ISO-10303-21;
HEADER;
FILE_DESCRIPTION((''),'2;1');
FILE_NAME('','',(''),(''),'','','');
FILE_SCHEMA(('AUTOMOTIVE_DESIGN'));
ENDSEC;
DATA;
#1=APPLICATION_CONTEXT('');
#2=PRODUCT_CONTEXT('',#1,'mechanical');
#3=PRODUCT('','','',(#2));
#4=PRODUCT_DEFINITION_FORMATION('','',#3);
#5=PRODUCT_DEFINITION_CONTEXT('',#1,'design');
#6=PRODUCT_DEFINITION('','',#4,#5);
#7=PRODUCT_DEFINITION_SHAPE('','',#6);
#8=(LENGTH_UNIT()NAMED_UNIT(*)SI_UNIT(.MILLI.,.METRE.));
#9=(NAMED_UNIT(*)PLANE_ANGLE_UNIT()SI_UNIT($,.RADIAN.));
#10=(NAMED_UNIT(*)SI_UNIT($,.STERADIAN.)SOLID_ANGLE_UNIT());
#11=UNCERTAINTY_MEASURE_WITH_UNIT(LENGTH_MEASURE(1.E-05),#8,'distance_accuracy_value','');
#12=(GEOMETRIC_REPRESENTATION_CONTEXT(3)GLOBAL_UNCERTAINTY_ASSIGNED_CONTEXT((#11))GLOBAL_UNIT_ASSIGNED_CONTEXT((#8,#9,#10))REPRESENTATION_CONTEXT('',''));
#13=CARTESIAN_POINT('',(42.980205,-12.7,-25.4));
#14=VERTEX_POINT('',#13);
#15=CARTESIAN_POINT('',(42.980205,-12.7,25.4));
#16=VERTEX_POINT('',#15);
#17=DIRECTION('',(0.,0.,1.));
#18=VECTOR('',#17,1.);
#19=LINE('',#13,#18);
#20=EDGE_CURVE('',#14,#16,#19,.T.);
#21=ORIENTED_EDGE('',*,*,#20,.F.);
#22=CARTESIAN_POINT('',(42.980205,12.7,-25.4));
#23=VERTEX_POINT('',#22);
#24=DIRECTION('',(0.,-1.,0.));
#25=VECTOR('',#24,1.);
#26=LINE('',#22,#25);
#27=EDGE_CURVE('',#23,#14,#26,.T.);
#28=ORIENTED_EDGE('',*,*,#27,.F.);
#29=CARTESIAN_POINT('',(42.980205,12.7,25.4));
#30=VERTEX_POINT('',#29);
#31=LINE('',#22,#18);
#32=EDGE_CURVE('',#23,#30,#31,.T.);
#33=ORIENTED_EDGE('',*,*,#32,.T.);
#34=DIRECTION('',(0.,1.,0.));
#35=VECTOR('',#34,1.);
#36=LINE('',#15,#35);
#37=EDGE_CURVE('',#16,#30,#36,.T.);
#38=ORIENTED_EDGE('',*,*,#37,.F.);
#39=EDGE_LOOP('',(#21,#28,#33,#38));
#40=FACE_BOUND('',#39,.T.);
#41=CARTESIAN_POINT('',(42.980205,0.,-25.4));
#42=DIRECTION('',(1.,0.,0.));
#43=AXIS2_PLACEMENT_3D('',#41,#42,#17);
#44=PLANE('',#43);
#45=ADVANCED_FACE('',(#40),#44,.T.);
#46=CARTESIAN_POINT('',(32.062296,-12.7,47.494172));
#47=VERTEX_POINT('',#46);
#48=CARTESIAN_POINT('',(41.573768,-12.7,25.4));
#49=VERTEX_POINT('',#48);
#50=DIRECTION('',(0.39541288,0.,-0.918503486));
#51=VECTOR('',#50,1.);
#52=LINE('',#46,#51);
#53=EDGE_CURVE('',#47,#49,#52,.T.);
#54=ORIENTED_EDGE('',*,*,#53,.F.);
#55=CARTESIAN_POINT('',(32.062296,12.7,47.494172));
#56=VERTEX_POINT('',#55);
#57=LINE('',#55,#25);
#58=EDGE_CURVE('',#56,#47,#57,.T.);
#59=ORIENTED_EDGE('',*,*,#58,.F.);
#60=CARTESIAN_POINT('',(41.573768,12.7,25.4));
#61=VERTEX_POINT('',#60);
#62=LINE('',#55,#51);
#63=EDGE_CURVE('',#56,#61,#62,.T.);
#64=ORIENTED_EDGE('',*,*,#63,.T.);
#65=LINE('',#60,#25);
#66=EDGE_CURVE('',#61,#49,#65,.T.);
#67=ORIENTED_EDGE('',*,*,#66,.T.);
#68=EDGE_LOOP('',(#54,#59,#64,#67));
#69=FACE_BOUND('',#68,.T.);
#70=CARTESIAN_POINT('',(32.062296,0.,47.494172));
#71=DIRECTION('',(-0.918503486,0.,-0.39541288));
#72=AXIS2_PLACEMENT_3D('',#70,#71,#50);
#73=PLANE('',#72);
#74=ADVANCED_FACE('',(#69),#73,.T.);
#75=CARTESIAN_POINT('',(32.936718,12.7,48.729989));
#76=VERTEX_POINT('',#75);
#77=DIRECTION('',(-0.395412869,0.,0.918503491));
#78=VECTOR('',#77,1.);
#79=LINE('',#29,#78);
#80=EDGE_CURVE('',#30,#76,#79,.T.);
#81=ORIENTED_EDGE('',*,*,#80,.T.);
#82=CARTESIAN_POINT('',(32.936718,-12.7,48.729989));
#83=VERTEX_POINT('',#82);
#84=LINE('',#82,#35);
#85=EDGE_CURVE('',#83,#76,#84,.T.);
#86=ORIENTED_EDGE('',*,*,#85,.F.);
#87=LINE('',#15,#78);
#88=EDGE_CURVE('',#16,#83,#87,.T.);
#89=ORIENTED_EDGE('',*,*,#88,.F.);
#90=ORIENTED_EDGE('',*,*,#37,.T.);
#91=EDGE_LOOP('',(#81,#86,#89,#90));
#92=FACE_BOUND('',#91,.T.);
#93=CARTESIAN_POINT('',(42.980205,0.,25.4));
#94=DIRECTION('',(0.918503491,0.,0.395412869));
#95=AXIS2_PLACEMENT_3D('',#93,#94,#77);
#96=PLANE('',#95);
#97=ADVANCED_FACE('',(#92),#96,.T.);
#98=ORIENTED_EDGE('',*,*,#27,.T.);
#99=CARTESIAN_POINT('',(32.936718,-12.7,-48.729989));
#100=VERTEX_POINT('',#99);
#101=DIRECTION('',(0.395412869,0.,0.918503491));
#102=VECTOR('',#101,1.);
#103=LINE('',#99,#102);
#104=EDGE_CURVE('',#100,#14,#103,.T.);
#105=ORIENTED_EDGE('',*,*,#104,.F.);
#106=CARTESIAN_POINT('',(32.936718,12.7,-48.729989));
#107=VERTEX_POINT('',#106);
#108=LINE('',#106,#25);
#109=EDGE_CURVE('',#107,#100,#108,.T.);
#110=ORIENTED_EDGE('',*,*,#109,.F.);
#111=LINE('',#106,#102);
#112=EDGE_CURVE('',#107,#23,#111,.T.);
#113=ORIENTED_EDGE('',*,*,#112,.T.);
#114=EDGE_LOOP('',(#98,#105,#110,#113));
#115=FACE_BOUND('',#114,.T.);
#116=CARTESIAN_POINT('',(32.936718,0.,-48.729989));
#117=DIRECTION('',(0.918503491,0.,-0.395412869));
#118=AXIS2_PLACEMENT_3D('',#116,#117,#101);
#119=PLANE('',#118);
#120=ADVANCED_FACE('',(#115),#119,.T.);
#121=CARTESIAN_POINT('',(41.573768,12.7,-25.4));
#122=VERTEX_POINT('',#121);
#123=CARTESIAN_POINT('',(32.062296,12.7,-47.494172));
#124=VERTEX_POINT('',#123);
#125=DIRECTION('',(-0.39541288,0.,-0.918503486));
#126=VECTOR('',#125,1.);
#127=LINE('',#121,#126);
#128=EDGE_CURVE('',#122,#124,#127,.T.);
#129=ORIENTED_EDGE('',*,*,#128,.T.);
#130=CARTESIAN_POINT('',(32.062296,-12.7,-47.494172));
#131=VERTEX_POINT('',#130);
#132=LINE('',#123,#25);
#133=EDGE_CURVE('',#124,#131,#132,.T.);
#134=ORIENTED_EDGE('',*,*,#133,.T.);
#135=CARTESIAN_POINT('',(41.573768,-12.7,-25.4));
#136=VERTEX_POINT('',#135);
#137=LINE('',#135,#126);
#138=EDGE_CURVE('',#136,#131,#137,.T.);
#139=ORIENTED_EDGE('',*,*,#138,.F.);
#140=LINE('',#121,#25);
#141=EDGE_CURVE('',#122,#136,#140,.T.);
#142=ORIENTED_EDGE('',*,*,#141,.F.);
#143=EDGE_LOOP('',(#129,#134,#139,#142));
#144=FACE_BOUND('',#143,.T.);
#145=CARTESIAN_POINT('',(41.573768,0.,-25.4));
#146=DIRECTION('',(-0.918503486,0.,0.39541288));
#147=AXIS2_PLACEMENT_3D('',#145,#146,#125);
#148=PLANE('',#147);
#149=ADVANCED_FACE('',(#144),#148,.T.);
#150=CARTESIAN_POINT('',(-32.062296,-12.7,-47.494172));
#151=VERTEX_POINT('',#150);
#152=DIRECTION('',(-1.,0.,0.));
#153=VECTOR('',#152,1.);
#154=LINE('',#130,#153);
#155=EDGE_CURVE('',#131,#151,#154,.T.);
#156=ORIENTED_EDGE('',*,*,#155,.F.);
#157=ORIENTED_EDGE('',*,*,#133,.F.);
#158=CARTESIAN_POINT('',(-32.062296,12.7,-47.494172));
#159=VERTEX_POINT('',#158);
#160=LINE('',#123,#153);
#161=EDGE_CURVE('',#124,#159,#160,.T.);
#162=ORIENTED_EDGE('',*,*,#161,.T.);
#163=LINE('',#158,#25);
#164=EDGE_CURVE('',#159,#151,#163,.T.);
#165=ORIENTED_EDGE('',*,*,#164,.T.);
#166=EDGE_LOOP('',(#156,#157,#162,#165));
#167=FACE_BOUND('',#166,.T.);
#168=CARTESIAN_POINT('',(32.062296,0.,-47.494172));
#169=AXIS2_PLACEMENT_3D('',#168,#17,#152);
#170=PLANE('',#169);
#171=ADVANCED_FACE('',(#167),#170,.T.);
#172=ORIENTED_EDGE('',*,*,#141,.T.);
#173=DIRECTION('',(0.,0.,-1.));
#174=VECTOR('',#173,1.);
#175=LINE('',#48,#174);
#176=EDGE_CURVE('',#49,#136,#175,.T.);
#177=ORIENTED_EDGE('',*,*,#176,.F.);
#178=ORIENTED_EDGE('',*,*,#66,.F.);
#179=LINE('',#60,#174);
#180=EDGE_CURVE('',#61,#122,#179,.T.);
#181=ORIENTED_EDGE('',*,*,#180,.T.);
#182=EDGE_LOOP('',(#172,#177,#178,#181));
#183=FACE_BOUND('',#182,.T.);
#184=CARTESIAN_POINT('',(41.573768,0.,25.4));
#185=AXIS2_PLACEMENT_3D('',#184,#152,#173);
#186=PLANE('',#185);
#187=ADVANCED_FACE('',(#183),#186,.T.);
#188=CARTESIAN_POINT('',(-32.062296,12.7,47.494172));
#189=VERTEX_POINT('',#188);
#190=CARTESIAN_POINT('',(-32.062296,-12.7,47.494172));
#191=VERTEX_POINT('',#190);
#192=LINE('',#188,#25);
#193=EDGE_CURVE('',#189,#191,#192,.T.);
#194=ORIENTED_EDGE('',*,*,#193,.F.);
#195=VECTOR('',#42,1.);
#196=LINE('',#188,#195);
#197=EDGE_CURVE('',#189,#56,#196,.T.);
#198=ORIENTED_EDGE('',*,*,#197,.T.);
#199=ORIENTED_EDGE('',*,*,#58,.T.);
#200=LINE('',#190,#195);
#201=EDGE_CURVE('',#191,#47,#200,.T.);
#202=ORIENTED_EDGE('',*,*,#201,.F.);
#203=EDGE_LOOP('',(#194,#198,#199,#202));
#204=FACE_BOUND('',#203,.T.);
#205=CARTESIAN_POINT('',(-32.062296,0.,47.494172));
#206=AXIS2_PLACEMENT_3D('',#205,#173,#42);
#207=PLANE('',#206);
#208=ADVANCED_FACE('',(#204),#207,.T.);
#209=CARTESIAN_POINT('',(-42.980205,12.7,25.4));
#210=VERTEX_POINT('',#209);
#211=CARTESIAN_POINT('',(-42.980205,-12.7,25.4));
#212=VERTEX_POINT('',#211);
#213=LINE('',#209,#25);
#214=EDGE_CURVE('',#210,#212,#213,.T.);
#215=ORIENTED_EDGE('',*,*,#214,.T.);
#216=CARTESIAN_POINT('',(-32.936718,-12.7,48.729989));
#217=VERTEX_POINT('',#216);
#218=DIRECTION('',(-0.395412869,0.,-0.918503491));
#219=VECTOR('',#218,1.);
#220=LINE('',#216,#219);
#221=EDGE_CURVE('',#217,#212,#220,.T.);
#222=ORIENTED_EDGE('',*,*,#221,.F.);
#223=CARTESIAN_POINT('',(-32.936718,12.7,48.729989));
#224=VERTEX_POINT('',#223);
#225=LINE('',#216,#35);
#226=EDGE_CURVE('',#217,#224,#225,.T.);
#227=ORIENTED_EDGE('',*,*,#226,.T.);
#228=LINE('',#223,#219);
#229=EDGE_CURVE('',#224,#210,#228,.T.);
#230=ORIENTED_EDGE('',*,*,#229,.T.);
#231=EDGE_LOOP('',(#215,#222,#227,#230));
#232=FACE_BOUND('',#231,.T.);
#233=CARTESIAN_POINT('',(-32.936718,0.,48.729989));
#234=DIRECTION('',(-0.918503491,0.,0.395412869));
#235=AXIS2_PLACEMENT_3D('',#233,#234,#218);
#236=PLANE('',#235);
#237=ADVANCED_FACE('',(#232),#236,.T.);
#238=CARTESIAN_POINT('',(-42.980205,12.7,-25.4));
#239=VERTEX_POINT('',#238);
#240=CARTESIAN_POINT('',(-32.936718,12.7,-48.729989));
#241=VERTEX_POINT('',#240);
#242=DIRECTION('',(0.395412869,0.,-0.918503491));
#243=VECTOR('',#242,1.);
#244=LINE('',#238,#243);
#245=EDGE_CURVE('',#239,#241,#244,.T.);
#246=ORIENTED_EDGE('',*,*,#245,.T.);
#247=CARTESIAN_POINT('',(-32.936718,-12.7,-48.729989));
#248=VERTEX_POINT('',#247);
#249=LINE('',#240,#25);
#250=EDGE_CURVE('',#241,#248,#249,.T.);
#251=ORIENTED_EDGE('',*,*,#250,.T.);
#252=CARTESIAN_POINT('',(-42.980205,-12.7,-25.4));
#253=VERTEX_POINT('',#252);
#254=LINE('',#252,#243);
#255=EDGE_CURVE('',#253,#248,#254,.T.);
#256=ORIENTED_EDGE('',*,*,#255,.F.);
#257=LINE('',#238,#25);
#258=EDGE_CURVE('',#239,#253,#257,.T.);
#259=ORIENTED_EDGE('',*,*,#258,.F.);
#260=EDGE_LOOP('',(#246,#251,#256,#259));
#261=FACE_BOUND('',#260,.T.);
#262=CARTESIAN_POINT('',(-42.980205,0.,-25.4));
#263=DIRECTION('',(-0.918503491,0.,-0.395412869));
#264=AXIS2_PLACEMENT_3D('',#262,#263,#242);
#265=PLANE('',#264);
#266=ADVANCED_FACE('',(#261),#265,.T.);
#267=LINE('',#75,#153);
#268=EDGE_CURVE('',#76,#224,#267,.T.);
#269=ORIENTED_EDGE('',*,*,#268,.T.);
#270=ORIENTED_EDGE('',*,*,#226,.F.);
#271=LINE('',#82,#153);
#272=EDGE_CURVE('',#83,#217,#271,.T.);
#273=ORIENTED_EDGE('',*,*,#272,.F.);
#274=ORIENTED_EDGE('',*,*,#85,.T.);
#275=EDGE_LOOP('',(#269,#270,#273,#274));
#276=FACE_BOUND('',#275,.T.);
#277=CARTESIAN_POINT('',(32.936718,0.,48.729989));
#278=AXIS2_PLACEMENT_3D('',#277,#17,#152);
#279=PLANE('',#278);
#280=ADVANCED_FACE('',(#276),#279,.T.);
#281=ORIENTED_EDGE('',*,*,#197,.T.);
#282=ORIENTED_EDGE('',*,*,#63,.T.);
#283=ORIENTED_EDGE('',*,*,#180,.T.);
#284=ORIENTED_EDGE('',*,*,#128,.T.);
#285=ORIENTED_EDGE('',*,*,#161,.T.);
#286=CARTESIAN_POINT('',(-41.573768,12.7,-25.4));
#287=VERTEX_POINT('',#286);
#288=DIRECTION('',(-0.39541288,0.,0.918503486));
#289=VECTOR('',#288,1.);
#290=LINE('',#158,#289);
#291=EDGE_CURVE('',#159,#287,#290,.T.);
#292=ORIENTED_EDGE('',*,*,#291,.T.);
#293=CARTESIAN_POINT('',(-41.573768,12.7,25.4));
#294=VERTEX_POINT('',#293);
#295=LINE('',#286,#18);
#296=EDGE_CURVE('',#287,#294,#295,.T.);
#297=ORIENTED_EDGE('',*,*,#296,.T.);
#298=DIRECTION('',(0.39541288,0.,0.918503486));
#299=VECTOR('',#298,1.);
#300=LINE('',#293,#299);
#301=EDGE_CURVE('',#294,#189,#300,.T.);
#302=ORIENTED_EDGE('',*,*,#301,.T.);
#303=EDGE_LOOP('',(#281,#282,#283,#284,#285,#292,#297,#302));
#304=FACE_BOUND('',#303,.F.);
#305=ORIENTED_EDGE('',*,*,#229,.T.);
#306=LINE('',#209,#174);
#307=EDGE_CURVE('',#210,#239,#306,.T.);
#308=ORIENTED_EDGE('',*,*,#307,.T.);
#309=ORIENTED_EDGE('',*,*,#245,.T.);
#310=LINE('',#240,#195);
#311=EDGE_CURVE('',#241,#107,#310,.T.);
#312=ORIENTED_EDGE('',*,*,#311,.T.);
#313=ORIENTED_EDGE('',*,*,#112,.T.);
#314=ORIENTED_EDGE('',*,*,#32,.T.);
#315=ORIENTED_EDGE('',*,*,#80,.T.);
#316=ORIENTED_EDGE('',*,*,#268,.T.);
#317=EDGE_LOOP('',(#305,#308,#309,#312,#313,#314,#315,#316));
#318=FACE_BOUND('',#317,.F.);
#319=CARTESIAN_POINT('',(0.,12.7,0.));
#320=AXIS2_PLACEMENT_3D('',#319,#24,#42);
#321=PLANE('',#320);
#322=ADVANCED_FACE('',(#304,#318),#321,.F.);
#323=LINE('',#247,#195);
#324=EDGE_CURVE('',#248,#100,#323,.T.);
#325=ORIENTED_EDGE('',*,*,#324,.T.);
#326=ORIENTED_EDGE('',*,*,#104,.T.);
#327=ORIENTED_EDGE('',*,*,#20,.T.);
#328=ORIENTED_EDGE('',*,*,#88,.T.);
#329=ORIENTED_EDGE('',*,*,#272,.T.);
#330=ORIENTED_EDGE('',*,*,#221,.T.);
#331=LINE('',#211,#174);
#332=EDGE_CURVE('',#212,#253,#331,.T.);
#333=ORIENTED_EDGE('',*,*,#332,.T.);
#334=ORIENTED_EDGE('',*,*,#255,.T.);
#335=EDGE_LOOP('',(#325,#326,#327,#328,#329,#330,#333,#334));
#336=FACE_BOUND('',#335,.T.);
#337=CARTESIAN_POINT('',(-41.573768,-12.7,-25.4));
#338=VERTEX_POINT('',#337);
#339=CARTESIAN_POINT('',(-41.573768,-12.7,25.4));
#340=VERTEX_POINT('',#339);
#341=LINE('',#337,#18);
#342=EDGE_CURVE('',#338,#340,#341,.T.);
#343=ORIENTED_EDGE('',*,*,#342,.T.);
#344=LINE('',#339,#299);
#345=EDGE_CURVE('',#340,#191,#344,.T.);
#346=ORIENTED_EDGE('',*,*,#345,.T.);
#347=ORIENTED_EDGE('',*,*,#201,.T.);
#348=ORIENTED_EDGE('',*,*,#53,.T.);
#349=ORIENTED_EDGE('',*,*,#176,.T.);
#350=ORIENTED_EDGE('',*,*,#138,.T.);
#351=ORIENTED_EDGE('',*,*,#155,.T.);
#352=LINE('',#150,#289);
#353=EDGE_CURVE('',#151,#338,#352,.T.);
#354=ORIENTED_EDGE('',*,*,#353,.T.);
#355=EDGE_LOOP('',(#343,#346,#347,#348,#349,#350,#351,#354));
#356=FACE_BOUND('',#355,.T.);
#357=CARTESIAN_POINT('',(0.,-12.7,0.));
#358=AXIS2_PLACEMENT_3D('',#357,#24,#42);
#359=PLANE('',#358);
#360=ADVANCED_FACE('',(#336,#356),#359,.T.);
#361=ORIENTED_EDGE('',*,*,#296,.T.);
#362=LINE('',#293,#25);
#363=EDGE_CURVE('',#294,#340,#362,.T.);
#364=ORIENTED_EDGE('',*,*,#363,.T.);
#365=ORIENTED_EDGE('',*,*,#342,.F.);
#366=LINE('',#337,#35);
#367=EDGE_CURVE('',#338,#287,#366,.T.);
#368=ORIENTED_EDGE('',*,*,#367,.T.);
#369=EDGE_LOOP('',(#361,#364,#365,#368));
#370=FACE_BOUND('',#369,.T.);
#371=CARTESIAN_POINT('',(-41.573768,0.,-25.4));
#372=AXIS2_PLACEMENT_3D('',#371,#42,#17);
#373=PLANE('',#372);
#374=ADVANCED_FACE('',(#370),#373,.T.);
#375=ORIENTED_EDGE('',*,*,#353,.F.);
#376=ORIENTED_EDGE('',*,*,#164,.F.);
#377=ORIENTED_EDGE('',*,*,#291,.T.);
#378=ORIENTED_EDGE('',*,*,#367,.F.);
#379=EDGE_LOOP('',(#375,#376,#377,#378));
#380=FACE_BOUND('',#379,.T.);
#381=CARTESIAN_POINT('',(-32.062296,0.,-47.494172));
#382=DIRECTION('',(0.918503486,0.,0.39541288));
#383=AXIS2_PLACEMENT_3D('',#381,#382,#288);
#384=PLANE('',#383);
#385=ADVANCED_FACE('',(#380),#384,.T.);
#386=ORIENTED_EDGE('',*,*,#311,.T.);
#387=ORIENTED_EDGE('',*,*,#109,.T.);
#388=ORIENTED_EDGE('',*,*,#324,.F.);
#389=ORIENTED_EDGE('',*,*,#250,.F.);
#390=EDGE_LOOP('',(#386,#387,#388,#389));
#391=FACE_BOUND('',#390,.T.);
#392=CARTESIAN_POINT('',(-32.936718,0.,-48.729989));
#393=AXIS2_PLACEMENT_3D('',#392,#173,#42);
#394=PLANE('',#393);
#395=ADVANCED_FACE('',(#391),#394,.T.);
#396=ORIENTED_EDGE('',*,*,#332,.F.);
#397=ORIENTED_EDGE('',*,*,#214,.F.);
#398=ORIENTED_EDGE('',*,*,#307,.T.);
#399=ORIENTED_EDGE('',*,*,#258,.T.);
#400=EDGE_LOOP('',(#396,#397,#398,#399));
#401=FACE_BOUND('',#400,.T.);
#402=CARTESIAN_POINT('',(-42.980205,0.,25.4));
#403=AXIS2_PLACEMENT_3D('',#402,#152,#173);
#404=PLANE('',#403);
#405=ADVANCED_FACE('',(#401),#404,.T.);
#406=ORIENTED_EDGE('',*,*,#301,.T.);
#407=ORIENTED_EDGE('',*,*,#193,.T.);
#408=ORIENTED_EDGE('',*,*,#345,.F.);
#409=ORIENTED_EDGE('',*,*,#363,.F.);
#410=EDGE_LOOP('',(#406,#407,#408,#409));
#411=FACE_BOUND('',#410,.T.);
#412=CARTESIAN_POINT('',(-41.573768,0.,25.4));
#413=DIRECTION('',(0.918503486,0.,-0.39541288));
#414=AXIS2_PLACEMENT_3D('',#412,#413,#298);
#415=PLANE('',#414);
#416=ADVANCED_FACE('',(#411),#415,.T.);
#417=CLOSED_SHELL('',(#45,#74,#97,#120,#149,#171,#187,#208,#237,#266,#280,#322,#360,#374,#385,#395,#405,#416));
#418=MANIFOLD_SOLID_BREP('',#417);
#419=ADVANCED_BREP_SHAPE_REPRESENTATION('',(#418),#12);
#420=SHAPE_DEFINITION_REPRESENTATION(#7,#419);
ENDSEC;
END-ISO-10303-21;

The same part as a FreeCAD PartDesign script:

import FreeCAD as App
import Part
import Sketcher

V = App.Vector
Q = App.Units.Quantity


def add_polygon(sketch, points):
    """Adds a closed chain of lines whose ends are joined by coincident constraints."""
    first, n = sketch.GeometryCount, len(points)
    for a, b in zip(points, points[1:] + points[:1]):
        sketch.addGeometry(Part.LineSegment(App.Vector(*a, 0), App.Vector(*b, 0)), False)
    for i in range(n):
        sketch.addConstraint(Sketcher.Constraint("Coincident", first + i, 2, first + (i + 1) % n, 1))

doc = App.newDocument("Part")
body = doc.addObject("PartDesign::Body", "Body")

# Sketch on XZ plane
sketch1 = doc.addObject("Sketcher::SketchObject", "Sketch")
body.addObject(sketch1)
sketch1.AttachmentSupport = (doc.XZ_Plane, [""])
sketch1.MapMode = "FlatFace"
add_polygon(sketch1, [(-33, 49), (-43, 25), (-43, -25), (-33, -49), (33, -49), (43, -25), (43, 25), (33, 49)])  # lines 0-7
add_polygon(sketch1, [(-42, -25), (-42, 25), (-32, 47), (32, 47), (42, 25), (42, -25), (32, -47), (-32, -47)])  # lines 8-15
sketch1.addConstraint(Sketcher.Constraint("Vertical", 1))
sketch1.addConstraint(Sketcher.Constraint("Horizontal", 3))
sketch1.addConstraint(Sketcher.Constraint("Vertical", 5))
sketch1.addConstraint(Sketcher.Constraint("Horizontal", 7))
sketch1.addConstraint(Sketcher.Constraint("Vertical", 8))
sketch1.addConstraint(Sketcher.Constraint("Horizontal", 10))
sketch1.addConstraint(Sketcher.Constraint("Vertical", 12))
sketch1.addConstraint(Sketcher.Constraint("Horizontal", 14))
sketch1.addConstraint(Sketcher.Constraint("Symmetric", 0, 2, 4, 2, -1, 1))
sketch1.addConstraint(Sketcher.Constraint("Symmetric", 2, 2, 6, 2, -1, 1))
sketch1.addConstraint(Sketcher.Constraint("Symmetric", 8, 2, 12, 2, -1, 1))
sketch1.addConstraint(Sketcher.Constraint("Symmetric", 9, 2, 13, 2, -1, 1))
sketch1.addConstraint(Sketcher.Constraint("Parallel", 0, 4))
sketch1.addConstraint(Sketcher.Constraint("Parallel", 2, 6))
sketch1.addConstraint(Sketcher.Constraint("Parallel", 4, 9))
sketch1.addConstraint(Sketcher.Constraint("Parallel", 6, 11))
sketch1.addConstraint(Sketcher.Constraint("Parallel", 11, 15))
sketch1.addConstraint(Sketcher.Constraint("Horizontal", 1, 2, 4, 2))
sketch1.addConstraint(Sketcher.Constraint("Horizontal", 5, 2, 8, 2))
sketch1.addConstraint(Sketcher.Constraint("Horizontal", 8, 2, 11, 2))
sketch1.addConstraint(Sketcher.Constraint("Horizontal", 12, 2, 15, 2))
sketch1.addConstraint(Sketcher.Constraint("Vertical", 3, 2, 6, 2))
sketch1.addConstraint(Sketcher.Constraint("DistanceY", 1, 2, 1, 1, Q("2 in")))
sketch1.addConstraint(Sketcher.Constraint("Distance", 0, Q("1 in")))
sketch1.addConstraint(Sketcher.Constraint("DistanceX", 3, 1, 3, 2, Q("65.873436 mm")))
sketch1.addConstraint(Sketcher.Constraint("DistanceX", 10, 1, 10, 2, Q("64.124592 mm")))
sketch1.addConstraint(Sketcher.Constraint("DistanceY", 2, 2, -1, 1, Q("48.729989 mm")))
sketch1.addConstraint(Sketcher.Constraint("DistanceX", 8, 2, 7, 2, Q("8.63705 mm")))
pad1 = doc.addObject("PartDesign::Pad", "Pad")
body.addObject(pad1)
pad1.Profile = sketch1
pad1.Length = Q("1 in")
pad1.Midplane = True

doc.recompute()
